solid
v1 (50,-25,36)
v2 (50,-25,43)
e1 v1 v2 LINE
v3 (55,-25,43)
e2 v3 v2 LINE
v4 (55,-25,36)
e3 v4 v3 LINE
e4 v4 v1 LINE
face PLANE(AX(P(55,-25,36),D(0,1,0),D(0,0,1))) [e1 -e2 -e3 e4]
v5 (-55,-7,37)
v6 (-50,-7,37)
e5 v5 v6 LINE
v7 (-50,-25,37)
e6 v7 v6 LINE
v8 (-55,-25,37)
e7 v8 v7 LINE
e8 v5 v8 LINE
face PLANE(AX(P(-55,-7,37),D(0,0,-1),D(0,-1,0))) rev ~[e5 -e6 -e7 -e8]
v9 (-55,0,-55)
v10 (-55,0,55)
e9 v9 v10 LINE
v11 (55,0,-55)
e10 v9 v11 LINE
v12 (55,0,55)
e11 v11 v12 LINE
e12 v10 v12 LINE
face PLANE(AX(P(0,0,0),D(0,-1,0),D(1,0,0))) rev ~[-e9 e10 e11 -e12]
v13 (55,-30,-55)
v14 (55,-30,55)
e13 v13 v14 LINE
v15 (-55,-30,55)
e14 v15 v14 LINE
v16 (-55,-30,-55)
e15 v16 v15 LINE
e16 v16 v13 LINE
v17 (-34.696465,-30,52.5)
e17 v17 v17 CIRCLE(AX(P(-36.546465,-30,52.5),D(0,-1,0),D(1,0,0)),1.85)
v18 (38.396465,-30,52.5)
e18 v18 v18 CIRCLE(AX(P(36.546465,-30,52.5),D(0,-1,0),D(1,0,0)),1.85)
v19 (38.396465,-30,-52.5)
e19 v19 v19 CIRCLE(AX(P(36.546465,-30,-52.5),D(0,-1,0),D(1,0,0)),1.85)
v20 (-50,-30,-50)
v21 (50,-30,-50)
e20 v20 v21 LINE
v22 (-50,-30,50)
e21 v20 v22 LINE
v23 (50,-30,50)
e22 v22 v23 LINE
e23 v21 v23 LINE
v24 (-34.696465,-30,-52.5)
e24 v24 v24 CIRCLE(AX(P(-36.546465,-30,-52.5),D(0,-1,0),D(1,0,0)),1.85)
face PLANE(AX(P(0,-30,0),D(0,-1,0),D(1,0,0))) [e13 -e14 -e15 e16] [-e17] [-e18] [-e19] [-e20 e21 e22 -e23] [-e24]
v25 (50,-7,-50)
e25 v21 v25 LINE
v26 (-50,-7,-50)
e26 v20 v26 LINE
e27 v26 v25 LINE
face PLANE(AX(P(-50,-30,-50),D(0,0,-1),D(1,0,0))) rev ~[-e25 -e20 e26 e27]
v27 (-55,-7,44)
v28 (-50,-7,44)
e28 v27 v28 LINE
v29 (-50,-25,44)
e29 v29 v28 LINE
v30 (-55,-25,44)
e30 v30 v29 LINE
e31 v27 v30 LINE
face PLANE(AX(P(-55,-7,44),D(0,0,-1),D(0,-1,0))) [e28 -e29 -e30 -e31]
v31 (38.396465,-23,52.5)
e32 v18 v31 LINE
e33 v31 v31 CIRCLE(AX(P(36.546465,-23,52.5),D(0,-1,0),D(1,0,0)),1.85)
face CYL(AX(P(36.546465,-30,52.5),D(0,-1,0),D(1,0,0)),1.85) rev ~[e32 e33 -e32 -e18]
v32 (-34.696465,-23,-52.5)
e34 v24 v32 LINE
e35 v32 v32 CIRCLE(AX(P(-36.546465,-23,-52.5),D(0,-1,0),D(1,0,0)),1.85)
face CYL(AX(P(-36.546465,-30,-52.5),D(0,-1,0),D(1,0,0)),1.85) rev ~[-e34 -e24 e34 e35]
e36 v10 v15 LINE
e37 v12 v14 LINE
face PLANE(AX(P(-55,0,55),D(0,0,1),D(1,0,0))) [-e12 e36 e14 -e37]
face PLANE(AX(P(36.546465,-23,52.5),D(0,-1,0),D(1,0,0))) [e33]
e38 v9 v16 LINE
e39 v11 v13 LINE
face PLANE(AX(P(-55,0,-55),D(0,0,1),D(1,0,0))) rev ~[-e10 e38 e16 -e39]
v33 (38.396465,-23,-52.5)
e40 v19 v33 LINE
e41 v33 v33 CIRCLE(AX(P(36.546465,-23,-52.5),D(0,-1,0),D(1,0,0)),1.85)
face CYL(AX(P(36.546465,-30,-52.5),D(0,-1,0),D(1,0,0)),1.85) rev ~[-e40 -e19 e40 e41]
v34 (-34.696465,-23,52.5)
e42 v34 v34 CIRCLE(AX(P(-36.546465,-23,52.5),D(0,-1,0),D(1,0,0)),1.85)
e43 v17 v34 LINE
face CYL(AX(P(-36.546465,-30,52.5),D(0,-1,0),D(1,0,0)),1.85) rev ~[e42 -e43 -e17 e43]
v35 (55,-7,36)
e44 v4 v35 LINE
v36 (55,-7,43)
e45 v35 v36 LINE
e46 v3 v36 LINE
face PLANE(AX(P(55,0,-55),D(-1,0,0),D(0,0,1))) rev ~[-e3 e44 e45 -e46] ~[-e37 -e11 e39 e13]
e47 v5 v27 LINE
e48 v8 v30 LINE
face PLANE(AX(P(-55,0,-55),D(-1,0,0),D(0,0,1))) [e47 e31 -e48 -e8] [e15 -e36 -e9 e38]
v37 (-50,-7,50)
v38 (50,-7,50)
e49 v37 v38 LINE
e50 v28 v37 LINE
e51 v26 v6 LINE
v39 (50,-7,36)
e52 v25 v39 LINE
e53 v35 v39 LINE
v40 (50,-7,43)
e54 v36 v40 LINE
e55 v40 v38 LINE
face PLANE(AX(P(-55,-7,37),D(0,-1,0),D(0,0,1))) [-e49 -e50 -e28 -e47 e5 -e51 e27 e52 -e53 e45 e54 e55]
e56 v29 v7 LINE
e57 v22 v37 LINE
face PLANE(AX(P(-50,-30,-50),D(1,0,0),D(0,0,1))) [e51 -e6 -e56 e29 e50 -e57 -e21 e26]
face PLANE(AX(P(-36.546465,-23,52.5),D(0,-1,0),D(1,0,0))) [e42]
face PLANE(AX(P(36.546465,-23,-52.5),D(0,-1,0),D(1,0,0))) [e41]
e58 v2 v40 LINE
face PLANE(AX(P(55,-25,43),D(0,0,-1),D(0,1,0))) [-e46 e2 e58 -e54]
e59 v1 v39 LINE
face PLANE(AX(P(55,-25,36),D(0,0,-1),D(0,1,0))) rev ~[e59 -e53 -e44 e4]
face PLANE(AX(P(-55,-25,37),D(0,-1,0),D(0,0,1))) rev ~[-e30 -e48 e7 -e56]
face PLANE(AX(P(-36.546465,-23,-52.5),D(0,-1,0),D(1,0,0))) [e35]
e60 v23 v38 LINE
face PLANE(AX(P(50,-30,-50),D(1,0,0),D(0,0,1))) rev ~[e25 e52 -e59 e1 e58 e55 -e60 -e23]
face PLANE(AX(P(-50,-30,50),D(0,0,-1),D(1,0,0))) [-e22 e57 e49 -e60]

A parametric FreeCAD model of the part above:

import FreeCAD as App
import Part
import Sketcher
from FreeCAD import Vector
Q = App.Units.Quantity


def add_polygon(sketch, points):
    """Adds a closed chain of lines whose ends are joined by coincident constraints."""
    first, n = sketch.GeometryCount, len(points)
    for a, b in zip(points, points[1:] + points[:1]):
        sketch.addGeometry(Part.LineSegment(App.Vector(*a, 0), App.Vector(*b, 0)), False)
    for i in range(n):
        sketch.addConstraint(Sketcher.Constraint("Coincident", first + i, 2, first + (i + 1) % n, 1))

doc = App.newDocument("Part")
body = doc.addObject("PartDesign::Body", "Body")

sketch1 = body.newObject("Sketcher::SketchObject", "Sketch")
sketch1.AttachmentSupport = (doc.getObject("XZ_Plane"), [""])
sketch1.MapMode = "FlatFace"
add_polygon(sketch1, [(-55, 55), (-55, -55), (55, -55), (55, 55)])
sketch1.addConstraint([
    Sketcher.Constraint("Vertical", 0),
    Sketcher.Constraint("Horizontal", 1),
    Sketcher.Constraint("Vertical", 2),
    Sketcher.Constraint("Horizontal", 3),
    Sketcher.Constraint("Symmetric", 0, 2, 2, 2, -1, 1),
    Sketcher.Constraint("Equal", 3, 0),
    Sketcher.Constraint("DistanceX", 1, 1, 1, 2, Q("110 mm")),
])
pad1 = body.newObject("PartDesign::Pad", "Pad")
pad1.Profile = sketch1
pad1.Length = 30

sketch2 = body.newObject("Sketcher::SketchObject", "Sketch001")
sketch2.AttachmentSupport = (doc.getObject("XZ_Plane"), [""])
sketch2.MapMode = "FlatFace"
sketch2.AttachmentOffset = App.Placement(Vector(0, 0, 30), App.Rotation())
add_polygon(sketch2, [(-50, 50), (-50, -50), (50, -50), (50, 50)])
sketch2.addConstraint([
    Sketcher.Constraint("Vertical", 0),
    Sketcher.Constraint("Horizontal", 1),
    Sketcher.Constraint("Vertical", 2),
    Sketcher.Constraint("Horizontal", 3),
    Sketcher.Constraint("Symmetric", 0, 2, 2, 2, -1, 1),
    Sketcher.Constraint("Equal", 3, 0),
    Sketcher.Constraint("DistanceX", 1, 1, 1, 2, Q("100 mm")),
])
pocket1 = body.newObject("PartDesign::Pocket", "Pocket")
pocket1.Profile = sketch2
pocket1.Length = 23

sketch3 = body.newObject("Sketcher::SketchObject", "Sketch002")
sketch3.AttachmentSupport = (doc.getObject("YZ_Plane"), [""])
sketch3.MapMode = "FlatFace"
sketch3.AttachmentOffset = App.Placement(Vector(0, 0, 55), App.Rotation())
add_polygon(sketch3, [(-25, 43), (-25, 36), (-7, 36), (-7, 43)])
sketch3.addConstraint([
    Sketcher.Constraint("Vertical", 0),
    Sketcher.Constraint("Horizontal", 1),
    Sketcher.Constraint("Vertical", 2),
    Sketcher.Constraint("Horizontal", 3),
    Sketcher.Constraint("DistanceX", 1, 1, 1, 2, Q("18 mm")),
    Sketcher.Constraint("DistanceY", 0, 2, 0, 1, Q("7 mm")),
    Sketcher.Constraint("DistanceX", 0, 2, -1, 1, Q("25 mm")),
    Sketcher.Constraint("DistanceY", -1, 1, 0, 2, Q("36 mm")),
])
pocket2 = body.newObject("PartDesign::Pocket", "Pocket001")
pocket2.Profile = sketch3
pocket2.Length = 10

sketch4 = body.newObject("Sketcher::SketchObject", "Sketch003")
sketch4.AttachmentSupport = (doc.getObject("YZ_Plane"), [""])
sketch4.MapMode = "FlatFace"
sketch4.AttachmentOffset = App.Placement(Vector(0, 0, -55), App.Rotation())
add_polygon(sketch4, [(-7, 44), (-7, 37), (-25, 37), (-25, 44)])
sketch4.addConstraint([
    Sketcher.Constraint("Vertical", 0),
    Sketcher.Constraint("Horizontal", 1),
    Sketcher.Constraint("Vertical", 2),
    Sketcher.Constraint("Horizontal", 3),
    Sketcher.Constraint("DistanceX", 1, 2, 1, 1, Q("18 mm")),
    Sketcher.Constraint("DistanceY", 0, 2, 0, 1, Q("7 mm")),
    Sketcher.Constraint("DistanceX", 0, 2, -1, 1, Q("7 mm")),
    Sketcher.Constraint("DistanceY", -1, 1, 0, 2, Q("37 mm")),
])
pocket3 = body.newObject("PartDesign::Pocket", "Pocket002")
pocket3.Profile = sketch4
pocket3.Length = 10
pocket3.Reversed = True

sketch5 = body.newObject("Sketcher::SketchObject", "Sketch004")
sketch5.AttachmentSupport = (doc.getObject("XZ_Plane"), [""])
sketch5.MapMode = "FlatFace"
sketch5.AttachmentOffset = App.Placement(Vector(0, 0, 30), App.Rotation())
sketch5.addGeometry([
    Part.Circle(Vector(-36.546465, 52.5, 0), Vector(0, 0, 1), 1.85),
    Part.Circle(Vector(36.546465, 52.5, 0), Vector(0, 0, 1), 1.85),
    Part.Circle(Vector(-36.546465, -52.5, 0), Vector(0, 0, 1), 1.85),
    Part.Circle(Vector(36.546465, -52.5, 0), Vector(0, 0, 1), 1.85),
], False)
sketch5.addConstraint([
    Sketcher.Constraint("Equal", 0, 1),
    Sketcher.Constraint("Equal", 1, 2),
    Sketcher.Constraint("Equal", 2, 3),
    Sketcher.Constraint("Symmetric", 1, 3, 2, 3, -1, 1),
    Sketcher.Constraint("Symmetric", 0, 3, 3, 3, -1, 1),
    Sketcher.Constraint("Symmetric", 0, 3, 1, 3, -2),
    Sketcher.Constraint("Diameter", 0, Q("3.7 mm")),
    Sketcher.Constraint("DistanceY", 2, 3, 0, 3, Q("105 mm")),
    Sketcher.Constraint("DistanceX", 0, 3, 1, 3, Q("73.09293 mm")),
])
pocket4 = body.newObject("PartDesign::Pocket", "Pocket003")
pocket4.Profile = sketch5
pocket4.Length = 7

doc.recompute()
